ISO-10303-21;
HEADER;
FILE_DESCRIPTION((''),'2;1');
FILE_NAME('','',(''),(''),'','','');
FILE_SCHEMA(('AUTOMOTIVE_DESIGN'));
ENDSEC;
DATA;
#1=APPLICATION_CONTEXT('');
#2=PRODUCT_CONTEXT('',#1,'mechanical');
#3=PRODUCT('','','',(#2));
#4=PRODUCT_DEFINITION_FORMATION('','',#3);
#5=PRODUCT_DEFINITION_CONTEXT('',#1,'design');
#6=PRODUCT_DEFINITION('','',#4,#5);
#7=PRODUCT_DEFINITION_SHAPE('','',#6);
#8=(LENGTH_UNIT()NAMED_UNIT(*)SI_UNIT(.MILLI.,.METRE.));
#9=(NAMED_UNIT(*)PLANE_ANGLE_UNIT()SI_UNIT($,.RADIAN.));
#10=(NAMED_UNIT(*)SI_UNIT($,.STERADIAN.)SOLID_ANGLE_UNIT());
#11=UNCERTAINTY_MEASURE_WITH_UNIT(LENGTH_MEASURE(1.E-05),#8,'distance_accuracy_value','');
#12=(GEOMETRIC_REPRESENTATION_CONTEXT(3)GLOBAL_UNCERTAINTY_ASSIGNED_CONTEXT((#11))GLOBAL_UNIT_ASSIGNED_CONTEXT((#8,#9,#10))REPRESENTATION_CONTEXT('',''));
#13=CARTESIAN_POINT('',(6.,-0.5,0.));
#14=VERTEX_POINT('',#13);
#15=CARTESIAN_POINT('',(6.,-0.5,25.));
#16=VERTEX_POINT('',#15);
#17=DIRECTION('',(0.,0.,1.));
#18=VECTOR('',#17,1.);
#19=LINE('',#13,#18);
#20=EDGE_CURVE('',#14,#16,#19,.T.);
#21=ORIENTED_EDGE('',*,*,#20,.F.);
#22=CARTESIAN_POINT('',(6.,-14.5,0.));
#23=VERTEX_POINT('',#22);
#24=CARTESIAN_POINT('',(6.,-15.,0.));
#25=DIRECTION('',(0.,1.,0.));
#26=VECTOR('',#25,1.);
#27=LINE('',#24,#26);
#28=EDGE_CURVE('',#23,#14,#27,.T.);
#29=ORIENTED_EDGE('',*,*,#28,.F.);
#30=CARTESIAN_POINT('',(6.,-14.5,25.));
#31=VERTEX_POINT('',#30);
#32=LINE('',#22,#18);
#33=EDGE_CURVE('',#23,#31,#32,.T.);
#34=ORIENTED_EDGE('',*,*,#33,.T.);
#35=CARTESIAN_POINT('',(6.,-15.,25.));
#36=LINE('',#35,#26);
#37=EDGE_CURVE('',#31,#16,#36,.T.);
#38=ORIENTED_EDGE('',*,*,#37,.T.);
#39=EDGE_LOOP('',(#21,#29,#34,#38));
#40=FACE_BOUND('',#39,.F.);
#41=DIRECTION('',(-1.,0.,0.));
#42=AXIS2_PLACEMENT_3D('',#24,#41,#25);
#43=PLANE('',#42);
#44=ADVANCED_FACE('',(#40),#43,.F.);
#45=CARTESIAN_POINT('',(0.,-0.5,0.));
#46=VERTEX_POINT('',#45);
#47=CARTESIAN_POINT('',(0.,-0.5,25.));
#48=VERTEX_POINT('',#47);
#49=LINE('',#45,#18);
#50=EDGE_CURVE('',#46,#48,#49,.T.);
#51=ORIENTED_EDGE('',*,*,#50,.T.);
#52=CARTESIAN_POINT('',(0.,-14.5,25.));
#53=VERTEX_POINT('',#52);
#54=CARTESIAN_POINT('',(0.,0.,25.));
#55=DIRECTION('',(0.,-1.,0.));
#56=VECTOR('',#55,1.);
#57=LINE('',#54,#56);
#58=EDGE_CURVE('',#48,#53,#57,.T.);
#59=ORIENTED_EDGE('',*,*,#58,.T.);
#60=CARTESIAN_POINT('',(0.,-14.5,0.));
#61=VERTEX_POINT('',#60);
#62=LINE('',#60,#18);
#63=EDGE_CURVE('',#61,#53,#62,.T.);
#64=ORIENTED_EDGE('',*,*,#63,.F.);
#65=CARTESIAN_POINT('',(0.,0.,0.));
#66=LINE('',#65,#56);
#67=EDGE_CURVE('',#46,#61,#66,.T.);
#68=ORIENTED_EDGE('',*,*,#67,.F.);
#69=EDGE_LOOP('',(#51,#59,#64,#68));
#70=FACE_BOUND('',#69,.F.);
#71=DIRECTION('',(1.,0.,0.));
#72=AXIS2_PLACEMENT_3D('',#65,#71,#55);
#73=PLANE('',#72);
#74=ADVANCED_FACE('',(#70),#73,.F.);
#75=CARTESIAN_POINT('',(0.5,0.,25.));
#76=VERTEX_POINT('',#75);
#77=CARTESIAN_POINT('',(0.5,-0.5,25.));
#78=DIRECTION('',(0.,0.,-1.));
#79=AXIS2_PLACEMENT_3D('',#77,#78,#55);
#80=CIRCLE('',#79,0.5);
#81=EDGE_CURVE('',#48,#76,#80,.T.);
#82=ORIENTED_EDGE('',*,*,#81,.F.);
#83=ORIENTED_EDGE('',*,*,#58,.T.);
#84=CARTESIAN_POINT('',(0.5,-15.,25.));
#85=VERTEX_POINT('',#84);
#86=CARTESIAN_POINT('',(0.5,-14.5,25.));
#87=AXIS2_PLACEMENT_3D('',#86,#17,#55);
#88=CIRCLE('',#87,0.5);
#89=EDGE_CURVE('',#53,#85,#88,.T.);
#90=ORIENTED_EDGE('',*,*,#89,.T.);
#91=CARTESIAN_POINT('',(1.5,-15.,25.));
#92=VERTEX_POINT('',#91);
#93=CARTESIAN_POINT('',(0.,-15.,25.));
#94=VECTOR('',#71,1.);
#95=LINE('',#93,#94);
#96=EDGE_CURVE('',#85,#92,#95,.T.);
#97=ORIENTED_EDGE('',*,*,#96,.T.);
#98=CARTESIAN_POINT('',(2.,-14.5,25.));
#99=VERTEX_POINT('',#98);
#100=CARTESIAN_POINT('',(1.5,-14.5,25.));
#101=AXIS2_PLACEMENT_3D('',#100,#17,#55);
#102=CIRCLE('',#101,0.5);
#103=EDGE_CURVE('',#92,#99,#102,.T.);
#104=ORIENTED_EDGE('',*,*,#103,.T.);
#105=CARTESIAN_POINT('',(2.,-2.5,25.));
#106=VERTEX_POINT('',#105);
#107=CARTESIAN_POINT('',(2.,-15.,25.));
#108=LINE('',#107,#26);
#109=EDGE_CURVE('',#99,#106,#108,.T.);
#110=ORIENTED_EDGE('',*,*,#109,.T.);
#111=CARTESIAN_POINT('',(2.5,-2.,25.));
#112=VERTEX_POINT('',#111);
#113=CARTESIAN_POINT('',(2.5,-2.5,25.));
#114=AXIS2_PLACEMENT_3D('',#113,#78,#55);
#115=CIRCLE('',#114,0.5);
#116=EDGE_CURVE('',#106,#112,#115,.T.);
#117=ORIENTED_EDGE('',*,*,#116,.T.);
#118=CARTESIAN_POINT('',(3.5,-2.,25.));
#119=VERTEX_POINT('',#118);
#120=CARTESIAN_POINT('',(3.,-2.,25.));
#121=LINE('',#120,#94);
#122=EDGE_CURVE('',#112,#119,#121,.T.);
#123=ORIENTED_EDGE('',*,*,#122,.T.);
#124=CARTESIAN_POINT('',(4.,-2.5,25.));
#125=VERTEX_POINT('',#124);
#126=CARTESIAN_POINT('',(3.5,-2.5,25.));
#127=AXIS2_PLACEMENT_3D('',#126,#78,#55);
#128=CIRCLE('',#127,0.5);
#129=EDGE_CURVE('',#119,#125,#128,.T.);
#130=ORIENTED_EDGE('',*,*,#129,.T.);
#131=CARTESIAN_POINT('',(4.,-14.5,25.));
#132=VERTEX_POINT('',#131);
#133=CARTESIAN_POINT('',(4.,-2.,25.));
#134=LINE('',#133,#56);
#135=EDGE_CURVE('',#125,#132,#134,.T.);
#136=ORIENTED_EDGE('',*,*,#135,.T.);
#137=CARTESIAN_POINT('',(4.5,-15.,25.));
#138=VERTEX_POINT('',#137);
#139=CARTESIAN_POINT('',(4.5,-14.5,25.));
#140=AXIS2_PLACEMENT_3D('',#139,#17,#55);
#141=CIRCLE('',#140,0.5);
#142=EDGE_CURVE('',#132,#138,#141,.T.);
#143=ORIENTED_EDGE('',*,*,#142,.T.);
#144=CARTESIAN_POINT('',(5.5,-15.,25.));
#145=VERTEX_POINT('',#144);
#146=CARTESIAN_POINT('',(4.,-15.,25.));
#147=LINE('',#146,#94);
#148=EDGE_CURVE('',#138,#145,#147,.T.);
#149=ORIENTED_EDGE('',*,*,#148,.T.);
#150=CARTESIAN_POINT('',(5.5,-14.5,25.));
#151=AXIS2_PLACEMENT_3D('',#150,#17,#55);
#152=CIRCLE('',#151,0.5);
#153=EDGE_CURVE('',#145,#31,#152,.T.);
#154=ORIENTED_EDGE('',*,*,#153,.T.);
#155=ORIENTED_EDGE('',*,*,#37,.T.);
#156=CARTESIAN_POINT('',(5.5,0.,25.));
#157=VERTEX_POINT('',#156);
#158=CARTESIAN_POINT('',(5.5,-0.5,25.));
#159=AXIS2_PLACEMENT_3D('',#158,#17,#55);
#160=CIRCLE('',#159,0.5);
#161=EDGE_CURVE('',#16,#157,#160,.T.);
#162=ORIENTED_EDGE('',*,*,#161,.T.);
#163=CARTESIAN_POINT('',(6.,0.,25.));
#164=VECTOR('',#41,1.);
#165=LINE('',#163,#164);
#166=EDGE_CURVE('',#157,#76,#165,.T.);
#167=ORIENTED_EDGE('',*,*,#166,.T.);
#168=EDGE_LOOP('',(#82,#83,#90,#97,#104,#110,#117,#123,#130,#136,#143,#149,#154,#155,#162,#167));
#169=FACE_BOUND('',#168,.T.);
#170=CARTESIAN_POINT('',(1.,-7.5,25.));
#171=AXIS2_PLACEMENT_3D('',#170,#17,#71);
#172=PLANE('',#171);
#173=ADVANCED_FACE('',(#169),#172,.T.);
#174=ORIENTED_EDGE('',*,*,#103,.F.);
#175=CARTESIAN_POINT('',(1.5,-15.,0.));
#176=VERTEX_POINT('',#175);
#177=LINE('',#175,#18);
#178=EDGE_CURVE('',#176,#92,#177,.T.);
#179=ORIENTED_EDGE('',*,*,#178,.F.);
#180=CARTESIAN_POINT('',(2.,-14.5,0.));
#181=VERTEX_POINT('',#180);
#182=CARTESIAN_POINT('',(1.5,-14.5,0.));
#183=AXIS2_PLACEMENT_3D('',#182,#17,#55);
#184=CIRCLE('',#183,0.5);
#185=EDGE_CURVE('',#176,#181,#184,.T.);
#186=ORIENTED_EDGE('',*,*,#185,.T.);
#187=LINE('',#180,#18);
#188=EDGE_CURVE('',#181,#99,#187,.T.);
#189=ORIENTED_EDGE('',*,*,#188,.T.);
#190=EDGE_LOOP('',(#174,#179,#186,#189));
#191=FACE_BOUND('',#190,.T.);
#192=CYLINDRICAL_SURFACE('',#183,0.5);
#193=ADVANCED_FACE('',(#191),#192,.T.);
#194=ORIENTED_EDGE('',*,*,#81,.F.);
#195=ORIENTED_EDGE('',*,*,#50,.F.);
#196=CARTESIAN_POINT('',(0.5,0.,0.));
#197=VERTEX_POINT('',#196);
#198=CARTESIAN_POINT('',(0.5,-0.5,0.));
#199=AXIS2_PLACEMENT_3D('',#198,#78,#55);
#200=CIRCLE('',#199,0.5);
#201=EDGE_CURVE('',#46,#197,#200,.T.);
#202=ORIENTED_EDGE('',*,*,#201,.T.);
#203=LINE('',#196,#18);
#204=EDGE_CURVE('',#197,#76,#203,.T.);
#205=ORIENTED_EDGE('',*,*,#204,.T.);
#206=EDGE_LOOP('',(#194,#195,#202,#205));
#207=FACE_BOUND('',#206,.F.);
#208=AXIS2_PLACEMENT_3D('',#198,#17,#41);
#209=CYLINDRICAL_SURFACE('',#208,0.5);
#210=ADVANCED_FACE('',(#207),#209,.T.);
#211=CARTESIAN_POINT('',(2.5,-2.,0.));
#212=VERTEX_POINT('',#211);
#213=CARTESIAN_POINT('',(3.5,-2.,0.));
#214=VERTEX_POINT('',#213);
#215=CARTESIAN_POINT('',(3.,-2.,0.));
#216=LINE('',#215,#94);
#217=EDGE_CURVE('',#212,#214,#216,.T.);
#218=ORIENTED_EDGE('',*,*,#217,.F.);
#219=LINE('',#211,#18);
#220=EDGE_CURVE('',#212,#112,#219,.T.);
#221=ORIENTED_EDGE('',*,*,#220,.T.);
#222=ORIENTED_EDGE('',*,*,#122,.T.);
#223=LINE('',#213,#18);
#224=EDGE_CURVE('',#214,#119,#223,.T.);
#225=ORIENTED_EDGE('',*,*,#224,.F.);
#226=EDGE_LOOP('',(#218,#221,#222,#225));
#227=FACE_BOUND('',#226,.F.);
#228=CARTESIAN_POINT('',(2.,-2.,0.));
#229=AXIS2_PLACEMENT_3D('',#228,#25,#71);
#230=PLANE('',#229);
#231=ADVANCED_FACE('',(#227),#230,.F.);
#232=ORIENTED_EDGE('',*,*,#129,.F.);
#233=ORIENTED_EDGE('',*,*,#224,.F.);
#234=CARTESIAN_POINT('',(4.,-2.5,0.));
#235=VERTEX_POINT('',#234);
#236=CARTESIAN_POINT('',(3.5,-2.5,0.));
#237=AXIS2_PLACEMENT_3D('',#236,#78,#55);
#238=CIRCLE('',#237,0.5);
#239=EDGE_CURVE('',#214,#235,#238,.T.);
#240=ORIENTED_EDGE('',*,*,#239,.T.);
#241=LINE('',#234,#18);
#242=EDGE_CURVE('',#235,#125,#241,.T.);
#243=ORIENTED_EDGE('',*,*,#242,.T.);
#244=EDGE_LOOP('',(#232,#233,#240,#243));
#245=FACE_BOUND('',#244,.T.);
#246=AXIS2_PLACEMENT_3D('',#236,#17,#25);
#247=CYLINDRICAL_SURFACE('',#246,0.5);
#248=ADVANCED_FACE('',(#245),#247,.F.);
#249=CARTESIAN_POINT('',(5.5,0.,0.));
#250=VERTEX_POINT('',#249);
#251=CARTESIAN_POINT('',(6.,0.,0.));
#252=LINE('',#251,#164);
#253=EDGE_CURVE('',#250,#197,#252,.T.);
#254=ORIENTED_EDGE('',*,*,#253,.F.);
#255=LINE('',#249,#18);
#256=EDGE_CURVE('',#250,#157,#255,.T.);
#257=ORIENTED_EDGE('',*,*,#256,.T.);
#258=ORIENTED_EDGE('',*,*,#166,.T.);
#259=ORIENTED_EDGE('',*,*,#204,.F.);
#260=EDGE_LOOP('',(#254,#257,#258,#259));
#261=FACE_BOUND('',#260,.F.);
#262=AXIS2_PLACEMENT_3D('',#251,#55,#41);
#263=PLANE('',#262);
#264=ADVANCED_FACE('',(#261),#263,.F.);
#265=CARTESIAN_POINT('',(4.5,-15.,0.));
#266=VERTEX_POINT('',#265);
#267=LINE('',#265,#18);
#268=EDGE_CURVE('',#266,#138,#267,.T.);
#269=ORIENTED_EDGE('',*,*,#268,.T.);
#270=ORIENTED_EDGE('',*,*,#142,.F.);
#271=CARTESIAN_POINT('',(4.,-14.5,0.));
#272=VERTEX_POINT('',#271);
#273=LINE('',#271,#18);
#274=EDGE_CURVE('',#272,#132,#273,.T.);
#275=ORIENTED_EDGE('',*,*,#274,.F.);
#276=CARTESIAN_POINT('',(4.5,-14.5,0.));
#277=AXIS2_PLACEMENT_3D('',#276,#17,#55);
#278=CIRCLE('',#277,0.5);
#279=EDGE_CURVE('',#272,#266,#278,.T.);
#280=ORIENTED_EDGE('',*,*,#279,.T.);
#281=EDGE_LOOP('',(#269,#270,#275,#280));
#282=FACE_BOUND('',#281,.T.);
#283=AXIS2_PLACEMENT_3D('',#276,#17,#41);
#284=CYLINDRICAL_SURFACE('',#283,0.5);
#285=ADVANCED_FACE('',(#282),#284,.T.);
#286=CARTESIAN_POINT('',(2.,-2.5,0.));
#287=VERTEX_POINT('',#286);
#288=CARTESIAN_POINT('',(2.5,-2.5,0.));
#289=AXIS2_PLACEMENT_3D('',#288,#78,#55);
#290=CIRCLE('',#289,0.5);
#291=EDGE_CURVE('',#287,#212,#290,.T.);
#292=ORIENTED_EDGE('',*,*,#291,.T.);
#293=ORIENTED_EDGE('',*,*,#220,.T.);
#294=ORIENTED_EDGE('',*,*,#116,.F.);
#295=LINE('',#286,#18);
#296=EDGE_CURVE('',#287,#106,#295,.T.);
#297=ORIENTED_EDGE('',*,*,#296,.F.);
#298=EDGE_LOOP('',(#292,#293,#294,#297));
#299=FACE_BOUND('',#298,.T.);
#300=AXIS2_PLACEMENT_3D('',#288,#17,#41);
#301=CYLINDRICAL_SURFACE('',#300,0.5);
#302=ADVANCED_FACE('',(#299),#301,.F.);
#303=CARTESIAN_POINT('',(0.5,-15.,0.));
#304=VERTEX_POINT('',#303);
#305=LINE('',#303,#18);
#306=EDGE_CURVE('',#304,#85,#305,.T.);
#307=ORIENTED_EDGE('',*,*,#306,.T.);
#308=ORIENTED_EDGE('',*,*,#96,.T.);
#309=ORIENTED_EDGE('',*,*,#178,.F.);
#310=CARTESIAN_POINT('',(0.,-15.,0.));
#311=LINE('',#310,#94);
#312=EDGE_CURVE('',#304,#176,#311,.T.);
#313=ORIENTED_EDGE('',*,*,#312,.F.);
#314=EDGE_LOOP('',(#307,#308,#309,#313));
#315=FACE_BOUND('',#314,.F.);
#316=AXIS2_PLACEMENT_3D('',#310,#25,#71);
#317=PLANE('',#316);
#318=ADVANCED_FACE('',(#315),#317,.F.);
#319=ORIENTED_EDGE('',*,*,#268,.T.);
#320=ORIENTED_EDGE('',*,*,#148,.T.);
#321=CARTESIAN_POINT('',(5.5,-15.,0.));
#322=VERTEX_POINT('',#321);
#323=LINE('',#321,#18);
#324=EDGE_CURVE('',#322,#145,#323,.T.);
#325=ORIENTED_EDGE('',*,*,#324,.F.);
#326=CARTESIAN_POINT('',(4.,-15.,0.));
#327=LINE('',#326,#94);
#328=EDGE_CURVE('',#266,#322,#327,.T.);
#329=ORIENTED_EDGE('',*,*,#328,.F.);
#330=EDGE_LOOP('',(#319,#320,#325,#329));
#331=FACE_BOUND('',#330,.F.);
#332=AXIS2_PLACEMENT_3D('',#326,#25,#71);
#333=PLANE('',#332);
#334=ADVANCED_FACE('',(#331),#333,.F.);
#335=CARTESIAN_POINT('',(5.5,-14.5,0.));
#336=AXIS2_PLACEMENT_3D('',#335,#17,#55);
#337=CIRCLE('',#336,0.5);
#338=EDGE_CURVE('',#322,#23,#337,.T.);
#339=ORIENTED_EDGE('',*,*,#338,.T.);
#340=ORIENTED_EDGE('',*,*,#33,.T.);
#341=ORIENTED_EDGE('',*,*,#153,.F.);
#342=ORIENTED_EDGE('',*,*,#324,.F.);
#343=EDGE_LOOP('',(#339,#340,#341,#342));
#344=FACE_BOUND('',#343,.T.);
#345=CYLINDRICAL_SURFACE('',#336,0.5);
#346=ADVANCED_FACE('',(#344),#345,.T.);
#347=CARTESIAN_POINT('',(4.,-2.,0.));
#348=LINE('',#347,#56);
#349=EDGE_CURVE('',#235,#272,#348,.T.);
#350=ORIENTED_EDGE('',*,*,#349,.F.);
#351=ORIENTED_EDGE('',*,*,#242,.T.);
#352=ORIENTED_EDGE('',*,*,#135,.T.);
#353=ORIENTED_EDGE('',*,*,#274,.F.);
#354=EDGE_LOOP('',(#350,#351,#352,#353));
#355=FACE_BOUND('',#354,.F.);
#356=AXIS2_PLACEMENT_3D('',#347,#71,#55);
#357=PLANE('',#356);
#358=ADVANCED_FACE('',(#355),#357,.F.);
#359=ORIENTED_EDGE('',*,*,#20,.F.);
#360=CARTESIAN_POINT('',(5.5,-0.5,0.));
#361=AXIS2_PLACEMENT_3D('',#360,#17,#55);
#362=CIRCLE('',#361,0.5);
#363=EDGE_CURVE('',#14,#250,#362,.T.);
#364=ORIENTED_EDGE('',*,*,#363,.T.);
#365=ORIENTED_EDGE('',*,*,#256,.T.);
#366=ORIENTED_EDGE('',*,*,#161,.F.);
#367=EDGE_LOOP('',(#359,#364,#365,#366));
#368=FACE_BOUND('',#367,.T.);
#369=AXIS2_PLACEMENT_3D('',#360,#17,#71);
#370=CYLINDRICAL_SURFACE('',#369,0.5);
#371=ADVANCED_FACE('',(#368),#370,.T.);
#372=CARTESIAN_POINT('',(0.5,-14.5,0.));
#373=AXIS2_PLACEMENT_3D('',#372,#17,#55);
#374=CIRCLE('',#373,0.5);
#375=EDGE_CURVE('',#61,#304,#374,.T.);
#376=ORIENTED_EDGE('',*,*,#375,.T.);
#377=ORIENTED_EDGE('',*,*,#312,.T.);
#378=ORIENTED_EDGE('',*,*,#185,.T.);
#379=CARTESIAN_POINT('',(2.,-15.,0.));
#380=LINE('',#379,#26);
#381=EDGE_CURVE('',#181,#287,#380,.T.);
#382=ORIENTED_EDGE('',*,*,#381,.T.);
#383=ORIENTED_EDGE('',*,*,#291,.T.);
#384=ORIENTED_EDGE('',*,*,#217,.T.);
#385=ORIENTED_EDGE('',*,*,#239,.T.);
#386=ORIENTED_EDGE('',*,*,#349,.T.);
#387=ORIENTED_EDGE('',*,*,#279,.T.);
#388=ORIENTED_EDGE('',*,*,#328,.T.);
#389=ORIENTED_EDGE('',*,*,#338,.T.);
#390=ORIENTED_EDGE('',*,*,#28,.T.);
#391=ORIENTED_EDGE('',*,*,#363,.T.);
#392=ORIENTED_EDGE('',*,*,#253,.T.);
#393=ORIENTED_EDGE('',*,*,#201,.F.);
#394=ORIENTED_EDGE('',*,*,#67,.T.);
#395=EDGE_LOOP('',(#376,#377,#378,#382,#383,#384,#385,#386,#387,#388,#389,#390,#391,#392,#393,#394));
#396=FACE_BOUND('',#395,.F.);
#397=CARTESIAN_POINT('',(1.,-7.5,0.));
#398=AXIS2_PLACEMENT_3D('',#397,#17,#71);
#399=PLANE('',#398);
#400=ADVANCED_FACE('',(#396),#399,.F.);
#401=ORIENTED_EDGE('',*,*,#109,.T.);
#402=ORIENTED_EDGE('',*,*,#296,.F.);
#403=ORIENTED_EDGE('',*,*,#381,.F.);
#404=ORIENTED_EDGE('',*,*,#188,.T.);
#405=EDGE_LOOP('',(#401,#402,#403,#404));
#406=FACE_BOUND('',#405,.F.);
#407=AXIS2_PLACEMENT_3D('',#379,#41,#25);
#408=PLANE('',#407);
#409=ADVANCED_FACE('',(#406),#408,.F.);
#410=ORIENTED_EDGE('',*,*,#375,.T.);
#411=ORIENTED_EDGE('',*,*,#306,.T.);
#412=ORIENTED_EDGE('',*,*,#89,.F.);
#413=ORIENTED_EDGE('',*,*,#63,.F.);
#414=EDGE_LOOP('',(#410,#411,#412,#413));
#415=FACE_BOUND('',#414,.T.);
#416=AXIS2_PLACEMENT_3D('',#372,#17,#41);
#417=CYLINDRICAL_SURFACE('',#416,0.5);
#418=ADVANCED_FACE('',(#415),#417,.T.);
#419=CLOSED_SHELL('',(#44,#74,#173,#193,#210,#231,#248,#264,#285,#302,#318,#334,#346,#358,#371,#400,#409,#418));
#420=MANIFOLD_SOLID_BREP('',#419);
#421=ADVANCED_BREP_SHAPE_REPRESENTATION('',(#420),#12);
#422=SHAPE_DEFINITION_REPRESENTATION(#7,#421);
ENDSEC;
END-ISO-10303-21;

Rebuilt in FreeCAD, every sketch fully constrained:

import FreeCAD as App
import Part
import Sketcher

V = App.Vector
Q = App.Units.Quantity


def edges_at(feature, points):
    """Names of the edges that pass closest to the given points."""
    edges = feature.Shape.Edges
    near = lambda p: min(range(len(edges)), key=lambda i: edges[i].distToShape(Part.Vertex(*p))[0])
    return sorted({f"Edge{near(p) + 1}" for p in points})

doc = App.newDocument("Part")
body = doc.addObject("PartDesign::Body", "Body")

# Sketch on XY plane
sketch1 = body.newObject("Sketcher::SketchObject", "Sketch")
sketch1.AttachmentSupport = (doc.getObject("XY_Plane"), [""])
sketch1.MapMode = "FlatFace"
sketch1.addGeometry(Part.LineSegment(V(0, 0, 0), V(0, -15, 0)), False)
sketch1.addGeometry(Part.LineSegment(V(0, -15, 0), V(2, -15, 0)), False)
sketch1.addGeometry(Part.LineSegment(V(2, -15, 0), V(2, -2, 0)), False)
sketch1.addGeometry(Part.LineSegment(V(2, -2, 0), V(4, -2, 0)), False)
sketch1.addGeometry(Part.LineSegment(V(4, -2, 0), V(4, -15, 0)), False)
sketch1.addGeometry(Part.LineSegment(V(4, -15, 0), V(6, -15, 0)), False)
sketch1.addGeometry(Part.LineSegment(V(6, -15, 0), V(6, 0, 0)), False)
sketch1.addGeometry(Part.LineSegment(V(6, 0, 0), V(0, 0, 0)), False)
sketch1.addConstraint(Sketcher.Constraint("Coincident", 0, 2, 1, 1))
sketch1.addConstraint(Sketcher.Constraint("Coincident", 1, 2, 2, 1))
sketch1.addConstraint(Sketcher.Constraint("Coincident", 2, 2, 3, 1))
sketch1.addConstraint(Sketcher.Constraint("Coincident", 3, 2, 4, 1))
sketch1.addConstraint(Sketcher.Constraint("Coincident", 4, 2, 5, 1))
sketch1.addConstraint(Sketcher.Constraint("Coincident", 5, 2, 6, 1))
sketch1.addConstraint(Sketcher.Constraint("Coincident", 6, 2, 7, 1))
sketch1.addConstraint(Sketcher.Constraint("Coincident", 7, 2, 0, 1))
sketch1.addConstraint(Sketcher.Constraint("Vertical", 0))
sketch1.addConstraint(Sketcher.Constraint("Horizontal", 1))
sketch1.addConstraint(Sketcher.Constraint("Vertical", 2))
sketch1.addConstraint(Sketcher.Constraint("Horizontal", 3))
sketch1.addConstraint(Sketcher.Constraint("Vertical", 4))
sketch1.addConstraint(Sketcher.Constraint("Horizontal", 5))
sketch1.addConstraint(Sketcher.Constraint("Vertical", 6))
sketch1.addConstraint(Sketcher.Constraint("Horizontal", 7))
sketch1.addConstraint(Sketcher.Constraint("Coincident", 7, 2, -1, 1))
sketch1.addConstraint(Sketcher.Constraint("Horizontal", 1, 2, 4, 2))
sketch1.addConstraint(Sketcher.Constraint("Equal", 1, 3))
sketch1.addConstraint(Sketcher.Constraint("Equal", 3, 5))
sketch1.addConstraint(Sketcher.Constraint("DistanceX", 1, 1, 1, 2, Q("2 mm")))
sketch1.addConstraint(Sketcher.Constraint("DistanceY", 0, 2, 0, 1, Q("15 mm")))
sketch1.addConstraint(Sketcher.Constraint("DistanceY", 2, 1, 2, 2, Q("13 mm")))
pad1 = body.newObject("PartDesign::Pad", "Pad")
pad1.Profile = sketch1
pad1.Length = 25
doc.recompute()

fillet = body.newObject("PartDesign::Fillet", "Fillet")
fillet.Base = (pad1, edges_at(pad1, [
    (2, -2, 12.5),
    (4, -2, 12.5),
    (0, 0, 12.5),
    (6, 0, 12.5),
    (0, -15, 12.5),
    (2, -15, 12.5),
    (4, -15, 12.5),
    (6, -15, 12.5),
]))
fillet.Radius = 0.5

doc.recompute()
